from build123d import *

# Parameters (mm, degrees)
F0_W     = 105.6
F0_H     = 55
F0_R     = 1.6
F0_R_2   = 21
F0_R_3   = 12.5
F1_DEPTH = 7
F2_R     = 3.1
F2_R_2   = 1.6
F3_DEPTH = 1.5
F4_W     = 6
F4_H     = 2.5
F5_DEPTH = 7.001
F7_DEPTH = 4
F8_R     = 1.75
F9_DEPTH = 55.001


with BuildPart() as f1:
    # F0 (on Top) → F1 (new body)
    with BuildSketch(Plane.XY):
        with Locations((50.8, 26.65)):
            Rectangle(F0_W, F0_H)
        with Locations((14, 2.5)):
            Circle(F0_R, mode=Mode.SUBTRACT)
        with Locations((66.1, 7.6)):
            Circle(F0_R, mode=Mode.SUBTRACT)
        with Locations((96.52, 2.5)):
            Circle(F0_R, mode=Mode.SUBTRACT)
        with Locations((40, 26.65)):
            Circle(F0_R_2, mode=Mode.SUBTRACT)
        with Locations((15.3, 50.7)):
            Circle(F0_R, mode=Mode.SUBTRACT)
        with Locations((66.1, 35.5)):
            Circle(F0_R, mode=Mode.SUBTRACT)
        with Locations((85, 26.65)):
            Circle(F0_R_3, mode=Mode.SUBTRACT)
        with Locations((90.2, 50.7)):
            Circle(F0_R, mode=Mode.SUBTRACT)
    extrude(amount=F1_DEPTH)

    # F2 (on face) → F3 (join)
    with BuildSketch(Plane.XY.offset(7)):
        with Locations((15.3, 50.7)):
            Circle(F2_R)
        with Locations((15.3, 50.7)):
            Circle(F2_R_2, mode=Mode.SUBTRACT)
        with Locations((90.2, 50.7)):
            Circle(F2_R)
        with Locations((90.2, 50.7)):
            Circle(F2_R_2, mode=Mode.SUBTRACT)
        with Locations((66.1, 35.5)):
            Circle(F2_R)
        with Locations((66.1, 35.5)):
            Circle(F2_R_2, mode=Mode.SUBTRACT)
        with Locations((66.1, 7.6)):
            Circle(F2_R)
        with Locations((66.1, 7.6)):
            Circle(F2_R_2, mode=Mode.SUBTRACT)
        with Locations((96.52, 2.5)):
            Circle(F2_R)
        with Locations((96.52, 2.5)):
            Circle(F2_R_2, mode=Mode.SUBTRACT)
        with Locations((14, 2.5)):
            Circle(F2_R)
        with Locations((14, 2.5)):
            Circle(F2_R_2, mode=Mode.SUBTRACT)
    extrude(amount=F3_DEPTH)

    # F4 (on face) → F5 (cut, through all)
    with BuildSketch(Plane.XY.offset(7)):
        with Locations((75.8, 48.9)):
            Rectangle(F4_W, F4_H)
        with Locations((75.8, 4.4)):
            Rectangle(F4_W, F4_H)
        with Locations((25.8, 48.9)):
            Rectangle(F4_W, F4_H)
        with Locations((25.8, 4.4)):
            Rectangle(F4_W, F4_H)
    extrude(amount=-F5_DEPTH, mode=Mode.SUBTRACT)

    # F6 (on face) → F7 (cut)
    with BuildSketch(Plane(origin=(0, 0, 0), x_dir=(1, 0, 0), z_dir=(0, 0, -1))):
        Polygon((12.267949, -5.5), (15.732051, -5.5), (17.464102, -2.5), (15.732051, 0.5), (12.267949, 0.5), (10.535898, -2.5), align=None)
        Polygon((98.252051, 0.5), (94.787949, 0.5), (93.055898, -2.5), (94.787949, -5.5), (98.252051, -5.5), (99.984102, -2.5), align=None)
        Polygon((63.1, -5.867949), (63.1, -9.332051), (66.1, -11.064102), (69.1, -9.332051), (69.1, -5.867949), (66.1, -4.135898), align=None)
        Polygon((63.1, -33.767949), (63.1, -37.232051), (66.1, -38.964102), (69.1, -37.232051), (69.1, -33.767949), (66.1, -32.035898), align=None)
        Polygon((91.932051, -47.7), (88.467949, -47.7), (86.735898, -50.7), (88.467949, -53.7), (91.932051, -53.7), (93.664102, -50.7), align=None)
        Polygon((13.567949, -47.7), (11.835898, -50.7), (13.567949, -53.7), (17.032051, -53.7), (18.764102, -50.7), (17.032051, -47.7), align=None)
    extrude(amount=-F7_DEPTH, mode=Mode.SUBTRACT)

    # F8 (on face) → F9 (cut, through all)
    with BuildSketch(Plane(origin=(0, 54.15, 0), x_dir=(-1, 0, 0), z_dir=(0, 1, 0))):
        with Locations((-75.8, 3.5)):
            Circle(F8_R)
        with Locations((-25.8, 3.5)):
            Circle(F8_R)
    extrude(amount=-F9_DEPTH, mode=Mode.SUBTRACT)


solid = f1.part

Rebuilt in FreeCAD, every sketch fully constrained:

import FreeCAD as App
import Part
import Sketcher
Q = App.Units.Quantity


def add_polygon(sketch, points):
    """Adds a closed chain of lines whose ends are joined by coincident constraints."""
    first, n = sketch.GeometryCount, len(points)
    for a, b in zip(points, points[1:] + points[:1]):
        sketch.addGeometry(Part.LineSegment(App.Vector(*a, 0), App.Vector(*b, 0)), False)
    for i in range(n):
        sketch.addConstraint(Sketcher.Constraint("Coincident", first + i, 2, first + (i + 1) % n, 1))

doc = App.newDocument("Part")
body = doc.addObject("PartDesign::Body", "Body")

# Sketch on XY plane
sketch1 = body.newObject("Sketcher::SketchObject", "Sketch")
sketch1.AttachmentSupport = (doc.getObject("XY_Plane"), [""])
sketch1.MapMode = "FlatFace"
add_polygon(sketch1, [(-2, 54.1), (-2, -0.8), (103.6, -0.8), (103.6, 54.1)])  # lines 0-3
sketch1.addGeometry(Part.Circle(App.Vector(14, 2.5, 0), App.Vector(0, 0, 1), 1.6), False)  # 4
sketch1.addGeometry(Part.Circle(App.Vector(66.1, 7.6, 0), App.Vector(0, 0, 1), 1.6), False)  # 5
sketch1.addGeometry(Part.Circle(App.Vector(96.5, 2.5, 0), App.Vector(0, 0, 1), 1.6), False)  # 6
sketch1.addGeometry(Part.Circle(App.Vector(40, 26.6, 0), App.Vector(0, 0, 1), 21), False)  # 7
sketch1.addGeometry(Part.Circle(App.Vector(15.3, 50.7, 0), App.Vector(0, 0, 1), 1.6), False)  # 8
sketch1.addGeometry(Part.Circle(App.Vector(66.1, 35.5, 0), App.Vector(0, 0, 1), 1.6), False)  # 9
sketch1.addGeometry(Part.Circle(App.Vector(85, 26.6, 0), App.Vector(0, 0, 1), 12.5), False)  # 10
sketch1.addGeometry(Part.Circle(App.Vector(90.2, 50.7, 0), App.Vector(0, 0, 1), 1.6), False)  # 11
sketch1.addConstraint([
    Sketcher.Constraint("Vertical", 0),
    Sketcher.Constraint("Horizontal", 1),
    Sketcher.Constraint("Vertical", 2),
    Sketcher.Constraint("Horizontal", 3),
    Sketcher.Constraint("Equal", 4, 5),
    Sketcher.Constraint("Equal", 5, 6),
    Sketcher.Constraint("Equal", 6, 8),
    Sketcher.Constraint("Equal", 8, 9),
    Sketcher.Constraint("Equal", 9, 11),
    Sketcher.Constraint("Horizontal", 4, 3, 6, 3),
    Sketcher.Constraint("Horizontal", 7, 3, 10, 3),
    Sketcher.Constraint("Horizontal", 8, 3, 11, 3),
    Sketcher.Constraint("Vertical", 5, 3, 9, 3),
    Sketcher.Constraint("Diameter", 7, Q("42 mm")),
    Sketcher.Constraint("Diameter", 10, Q("25 mm")),
    Sketcher.Constraint("Diameter", 4, Q("3.2 mm")),
    Sketcher.Constraint("DistanceY", 0, 2, 0, 1, Q("55 mm")),
    Sketcher.Constraint("DistanceX", 1, 1, 1, 2, Q("105.6 mm")),
    Sketcher.Constraint("DistanceX", -1, 1, 4, 3, Q("14 mm")),
    Sketcher.Constraint("DistanceX", -1, 1, 7, 3, Q("40 mm")),
    Sketcher.Constraint("DistanceX", -1, 1, 10, 3, Q("85 mm")),
    Sketcher.Constraint("DistanceX", 0, 2, -1, 1, Q("2 mm")),
    Sketcher.Constraint("DistanceY", 6, 3, 9, 3, Q("33 mm")),
    Sketcher.Constraint("DistanceY", -1, 1, 4, 3, Q("2.5 mm")),
    Sketcher.Constraint("DistanceX", -1, 1, 5, 3, Q("66.1 mm")),
    Sketcher.Constraint("DistanceY", -1, 1, 5, 3, Q("7.6 mm")),
    Sketcher.Constraint("DistanceX", -1, 1, 8, 3, Q("15.3 mm")),
    Sketcher.Constraint("DistanceY", -1, 1, 8, 3, Q("50.7 mm")),
    Sketcher.Constraint("DistanceX", -1, 1, 11, 3, Q("90.2 mm")),
    Sketcher.Constraint("DistanceY", 0, 2, 7, 3, Q("27.5 mm")),
    Sketcher.Constraint("DistanceX", -1, 1, 6, 3, Q("96.52 mm")),
    Sketcher.Constraint("DistanceY", -1, 1, 7, 3, Q("26.65 mm")),
])
pad1 = body.newObject("PartDesign::Pad", "Pad")
pad1.Profile = sketch1
pad1.Length = 7

# Sketch on XY plane
sketch2 = body.newObject("Sketcher::SketchObject", "Sketch001")
sketch2.AttachmentSupport = (doc.getObject("XY_Plane"), [""])
sketch2.MapMode = "FlatFace"
sketch2.AttachmentOffset = App.Placement(App.Vector(0, 0, 7), App.Rotation())
sketch2.addGeometry([
    Part.Circle(App.Vector(15.3, 50.7, 0), App.Vector(0, 0, 1), 3.1),  # 0
    Part.Circle(App.Vector(15.3, 50.7, 0), App.Vector(0, 0, 1), 1.6),  # 1
    Part.Circle(App.Vector(90.2, 50.7, 0), App.Vector(0, 0, 1), 3.1),  # 2
    Part.Circle(App.Vector(90.2, 50.7, 0), App.Vector(0, 0, 1), 1.6),  # 3
    Part.Circle(App.Vector(66.1, 35.5, 0), App.Vector(0, 0, 1), 3.1),  # 4
    Part.Circle(App.Vector(66.1, 35.5, 0), App.Vector(0, 0, 1), 1.6),  # 5
    Part.Circle(App.Vector(66.1, 7.6, 0), App.Vector(0, 0, 1), 3.1),  # 6
    Part.Circle(App.Vector(66.1, 7.6, 0), App.Vector(0, 0, 1), 1.6),  # 7
    Part.Circle(App.Vector(96.5, 2.5, 0), App.Vector(0, 0, 1), 3.1),  # 8
    Part.Circle(App.Vector(96.5, 2.5, 0), App.Vector(0, 0, 1), 1.6),  # 9
    Part.Circle(App.Vector(14, 2.5, 0), App.Vector(0, 0, 1), 3.1),  # 10
    Part.Circle(App.Vector(14, 2.5, 0), App.Vector(0, 0, 1), 1.6),  # 11
], False)
sketch2.addConstraint([
    Sketcher.Constraint("Coincident", 1, 3, 0, 3),
    Sketcher.Constraint("Coincident", 3, 3, 2, 3),
    Sketcher.Constraint("Coincident", 5, 3, 4, 3),
    Sketcher.Constraint("Coincident", 7, 3, 6, 3),
    Sketcher.Constraint("Coincident", 9, 3, 8, 3),
    Sketcher.Constraint("Coincident", 11, 3, 10, 3),
    Sketcher.Constraint("Equal", 0, 2),
    Sketcher.Constraint("Equal", 1, 3),
    Sketcher.Constraint("Equal", 2, 4),
    Sketcher.Constraint("Equal", 3, 5),
    Sketcher.Constraint("Equal", 4, 6),
    Sketcher.Constraint("Equal", 5, 7),
    Sketcher.Constraint("Equal", 6, 8),
    Sketcher.Constraint("Equal", 7, 9),
    Sketcher.Constraint("Equal", 8, 10),
    Sketcher.Constraint("Equal", 9, 11),
    Sketcher.Constraint("Horizontal", 1, 3, 2, 3),
    Sketcher.Constraint("Horizontal", 9, 3, 10, 3),
    Sketcher.Constraint("Vertical", 5, 3, 6, 3),
    Sketcher.Constraint("Diameter", 0, Q("6.2 mm")),
    Sketcher.Constraint("Diameter", 1, Q("3.2 mm")),
    Sketcher.Constraint("DistanceX", -1, 1, 10, 3, Q("14 mm")),
    Sketcher.Constraint("DistanceY", 8, 3, 4, 3, Q("33 mm")),
    Sketcher.Constraint("DistanceX", -1, 1, 0, 3, Q("15.3 mm")),
    Sketcher.Constraint("DistanceY", -1, 1, 0, 3, Q("50.7 mm")),
    Sketcher.Constraint("DistanceX", -1, 1, 2, 3, Q("90.2 mm")),
    Sketcher.Constraint("DistanceX", -1, 1, 4, 3, Q("66.1 mm")),
    Sketcher.Constraint("DistanceY", -1, 1, 4, 3, Q("35.5 mm")),
    Sketcher.Constraint("DistanceY", -1, 1, 6, 3, Q("7.6 mm")),
    Sketcher.Constraint("DistanceX", -1, 1, 8, 3, Q("96.52 mm")),
])
pad2 = body.newObject("PartDesign::Pad", "Pad001")
pad2.Profile = sketch2
pad2.Length = 1.5

# Sketch on XY plane
sketch3 = body.newObject("Sketcher::SketchObject", "Sketch002")
sketch3.AttachmentSupport = (doc.getObject("XY_Plane"), [""])
sketch3.MapMode = "FlatFace"
sketch3.AttachmentOffset = App.Placement(App.Vector(0, 0, 7), App.Rotation())
add_polygon(sketch3, [(72.8, 50.1), (72.8, 47.6), (78.8, 47.6), (78.8, 50.1)])  # lines 0-3
add_polygon(sketch3, [(72.8, 5.7), (72.8, 3.1), (78.8, 3.1), (78.8, 5.7)])  # lines 4-7
add_polygon(sketch3, [(22.8, 50.1), (22.8, 47.6), (28.8, 47.6), (28.8, 50.1)])  # lines 8-11
add_polygon(sketch3, [(22.8, 5.7), (22.8, 3.1), (28.8, 3.1), (28.8, 5.7)])  # lines 12-15
sketch3.addConstraint([
    Sketcher.Constraint("Vertical", 0),
    Sketcher.Constraint("Horizontal", 1),
    Sketcher.Constraint("Vertical", 2),
    Sketcher.Constraint("Horizontal", 3),
    Sketcher.Constraint("Vertical", 4),
    Sketcher.Constraint("Horizontal", 5),
    Sketcher.Constraint("Vertical", 6),
    Sketcher.Constraint("Horizontal", 7),
    Sketcher.Constraint("Vertical", 8),
    Sketcher.Constraint("Horizontal", 9),
    Sketcher.Constraint("Vertical", 10),
    Sketcher.Constraint("Horizontal", 11),
    Sketcher.Constraint("Vertical", 12),
    Sketcher.Constraint("Horizontal", 13),
    Sketcher.Constraint("Vertical", 14),
    Sketcher.Constraint("Horizontal", 15),
    Sketcher.Constraint("Horizontal", 1, 2, 8, 2),
    Sketcher.Constraint("Horizontal", 3, 2, 10, 2),
    Sketcher.Constraint("Horizontal", 5, 2, 12, 2),
    Sketcher.Constraint("Horizontal", 7, 2, 14, 2),
    Sketcher.Constraint("Vertical", 3, 2, 4, 2),
    Sketcher.Constraint("Vertical", 2, 2, 5, 2),
    Sketcher.Constraint("Vertical", 11, 2, 12, 2),
    Sketcher.Constraint("Vertical", 10, 2, 13, 2),
    Sketcher.Constraint("Equal", 7, 9),
    Sketcher.Constraint("Equal", 2, 4),
    Sketcher.Constraint("DistanceX", 1, 1, 1, 2, Q("6 mm")),
    Sketcher.Constraint("DistanceY", 0, 2, 0, 1, Q("2.5 mm")),
    Sketcher.Constraint("DistanceY", 4, 2, 3, 2, Q("47 mm")),
    Sketcher.Constraint("DistanceX", 8, 2, 0, 2, Q("50 mm")),
    Sketcher.Constraint("DistanceX", -1, 1, 0, 2, Q("72.8 mm")),
    Sketcher.Constraint("DistanceY", -1, 1, 0, 2, Q("47.65 mm")),
])
pocket1 = body.newObject("PartDesign::Pocket", "Pocket")
pocket1.Profile = sketch3
pocket1.Type = "ThroughAll"

# Sketch on XY plane
sketch4 = body.newObject("Sketcher::SketchObject", "Sketch003")
sketch4.AttachmentSupport = (doc.getObject("XY_Plane"), [""])
sketch4.MapMode = "FlatFace"
add_polygon(sketch4, [(12.3, 5.5), (15.7, 5.5), (17.5, 2.5), (15.7, -0.5), (12.3, -0.5), (10.5, 2.5)])  # lines 0-5
add_polygon(sketch4, [(98.3, -0.5), (94.8, -0.5), (93.1, 2.5), (94.8, 5.5), (98.3, 5.5), (100, 2.5)])  # lines 6-11
add_polygon(sketch4, [(63.1, 5.9), (63.1, 9.3), (66.1, 11.1), (69.1, 9.3), (69.1, 5.9), (66.1, 4.1)])  # lines 12-17
add_polygon(sketch4, [(63.1, 33.8), (63.1, 37.2), (66.1, 39), (69.1, 37.2), (69.1, 33.8), (66.1, 32)])  # lines 18-23
add_polygon(sketch4, [(91.9, 47.7), (88.5, 47.7), (86.7, 50.7), (88.5, 53.7), (91.9, 53.7), (93.7, 50.7)])  # lines 24-29
add_polygon(sketch4, [(13.6, 47.7), (11.8, 50.7), (13.6, 53.7), (17, 53.7), (18.8, 50.7), (17, 47.7)])  # lines 30-35
sketch4.addConstraint([
    Sketcher.Constraint("Horizontal", 0),
    Sketcher.Constraint("Horizontal", 3),
    Sketcher.Constraint("Horizontal", 6),
    Sketcher.Constraint("Horizontal", 9),
    Sketcher.Constraint("Vertical", 12),
    Sketcher.Constraint("Vertical", 15),
    Sketcher.Constraint("Vertical", 18),
    Sketcher.Constraint("Vertical", 21),
    Sketcher.Constraint("Horizontal", 24),
    Sketcher.Constraint("Horizontal", 27),
    Sketcher.Constraint("Horizontal", 32),
    Sketcher.Constraint("Horizontal", 35),
    Sketcher.Constraint("Parallel", 1, 4),
    Sketcher.Constraint("Parallel", 2, 5),
    Sketcher.Constraint("Parallel", 4, 7),
    Sketcher.Constraint("Parallel", 5, 8),
    Sketcher.Constraint("Parallel", 7, 10),
    Sketcher.Constraint("Parallel", 8, 11),
    Sketcher.Constraint("Perpendicular", 10, 13),
    Sketcher.Constraint("Perpendicular", 11, 14),
    Sketcher.Constraint("Parallel", 13, 16),
    Sketcher.Constraint("Parallel", 14, 17),
    Sketcher.Constraint("Parallel", 16, 19),
    Sketcher.Constraint("Parallel", 17, 20),
    Sketcher.Constraint("Parallel", 19, 22),
    Sketcher.Constraint("Parallel", 20, 23),
    Sketcher.Constraint("Perpendicular", 22, 25),
    Sketcher.Constraint("Perpendicular", 23, 26),
    Sketcher.Constraint("Parallel", 25, 28),
    Sketcher.Constraint("Parallel", 26, 29),
    Sketcher.Constraint("Parallel", 28, 30),
    Sketcher.Constraint("Parallel", 29, 31),
    Sketcher.Constraint("Parallel", 30, 33),
    Sketcher.Constraint("Parallel", 31, 34),
    Sketcher.Constraint("Horizontal", 1, 2, 4, 2),
    Sketcher.Constraint("Horizontal", 3, 2, 6, 2),
    Sketcher.Constraint("Horizontal", 4, 2, 7, 2),
    Sketcher.Constraint("Horizontal", 5, 2, 8, 2),
    Sketcher.Constraint("Horizontal", 7, 2, 10, 2),
    Sketcher.Constraint("Horizontal", 12, 2, 14, 2),
    Sketcher.Constraint("Horizontal", 15, 2, 17, 2),
    Sketcher.Constraint("Horizontal", 18, 2, 20, 2),
    Sketcher.Constraint("Horizontal", 21, 2, 23, 2),
    Sketcher.Constraint("Horizontal", 25, 2, 28, 2),
    Sketcher.Constraint("Horizontal", 28, 2, 30, 2),
    Sketcher.Constraint("Horizontal", 27, 2, 31, 2),
    Sketcher.Constraint("Horizontal", 30, 2, 33, 2),
    Sketcher.Constraint("Horizontal", 29, 2, 34, 2),
    Sketcher.Constraint("Vertical", 0, 2, 2, 2),
    Sketcher.Constraint("Vertical", 3, 2, 5, 2),
    Sketcher.Constraint("Vertical", 17, 2, 18, 2),
    Sketcher.Constraint("Vertical", 16, 2, 19, 2),
    Sketcher.Constraint("Vertical", 24, 2, 26, 2),
    Sketcher.Constraint("Equal", 3, 6),
    Sketcher.Constraint("Equal", 9, 24),
    Sketcher.Constraint("Equal", 27, 32),
    Sketcher.Constraint("Equal", 35, 12),
    Sketcher.Constraint("Equal", 15, 18),
    Sketcher.Constraint("Equal", 11, 13),
    Sketcher.Constraint("Equal", 23, 25),
    Sketcher.Constraint("Angle", 1, Q("-59.999997 deg")),
    Sketcher.Constraint("DistanceY", 1, 2, 0, 2, Q("3 mm")),
    Sketcher.Constraint("DistanceY", -1, 1, 0, 2, Q("5.5 mm")),
    Sketcher.Constraint("DistanceX", -1, 1, 12, 2, Q("63.1 mm")),
    Sketcher.Constraint("DistanceY", -1, 1, 24, 2, Q("47.7 mm")),
    Sketcher.Constraint("DistanceY", 12, 2, 18, 2, Q("27.9 mm")),
    Sketcher.Constraint("DistanceX", 4, 2, 30, 2, Q("1.3 mm")),
    Sketcher.Constraint("DistanceX", 3, 2, 6, 2, Q("82.52 mm")),
    Sketcher.Constraint("DistanceX", 6, 2, 6, 1, Q("3.464102 mm")),
    Sketcher.Constraint("DistanceX", -1, 1, 7, 2, Q("93.055898 mm")),
    Sketcher.Constraint("DistanceY", -1, 1, 19, 2, Q("38.964102 mm")),
    Sketcher.Constraint("DistanceX", -1, 1, 25, 2, Q("86.735898 mm")),
])
pocket2 = body.newObject("PartDesign::Pocket", "Pocket001")
pocket2.Profile = sketch4
pocket2.Length = 4
pocket2.Reversed = True

# Sketch on XZ plane
sketch5 = body.newObject("Sketcher::SketchObject", "Sketch004")
sketch5.AttachmentSupport = (doc.getObject("XZ_Plane"), [""])
sketch5.MapMode = "FlatFace"
sketch5.AttachmentOffset = App.Placement(App.Vector(0, 0, -54.15), App.Rotation())
sketch5.addGeometry([
    Part.Circle(App.Vector(75.8, 3.5, 0), App.Vector(0, 0, 1), 1.8),
    Part.Circle(App.Vector(25.8, 3.5, 0), App.Vector(0, 0, 1), 1.8),
], False)
sketch5.addConstraint([
    Sketcher.Constraint("Equal", 0, 1),
    Sketcher.Constraint("Horizontal", 0, 3, 1, 3),
    Sketcher.Constraint("Diameter", 0, Q("3.5 mm")),
    Sketcher.Constraint("DistanceX", 1, 3, 0, 3, Q("50 mm")),
    Sketcher.Constraint("DistanceX", -1, 1, 0, 3, Q("75.8 mm")),
    Sketcher.Constraint("DistanceY", -1, 1, 0, 3, Q("3.5 mm")),
])
pocket3 = body.newObject("PartDesign::Pocket", "Pocket002")
pocket3.Profile = sketch5
pocket3.Type = "ThroughAll"
pocket3.Reversed = True

doc.recompute()
